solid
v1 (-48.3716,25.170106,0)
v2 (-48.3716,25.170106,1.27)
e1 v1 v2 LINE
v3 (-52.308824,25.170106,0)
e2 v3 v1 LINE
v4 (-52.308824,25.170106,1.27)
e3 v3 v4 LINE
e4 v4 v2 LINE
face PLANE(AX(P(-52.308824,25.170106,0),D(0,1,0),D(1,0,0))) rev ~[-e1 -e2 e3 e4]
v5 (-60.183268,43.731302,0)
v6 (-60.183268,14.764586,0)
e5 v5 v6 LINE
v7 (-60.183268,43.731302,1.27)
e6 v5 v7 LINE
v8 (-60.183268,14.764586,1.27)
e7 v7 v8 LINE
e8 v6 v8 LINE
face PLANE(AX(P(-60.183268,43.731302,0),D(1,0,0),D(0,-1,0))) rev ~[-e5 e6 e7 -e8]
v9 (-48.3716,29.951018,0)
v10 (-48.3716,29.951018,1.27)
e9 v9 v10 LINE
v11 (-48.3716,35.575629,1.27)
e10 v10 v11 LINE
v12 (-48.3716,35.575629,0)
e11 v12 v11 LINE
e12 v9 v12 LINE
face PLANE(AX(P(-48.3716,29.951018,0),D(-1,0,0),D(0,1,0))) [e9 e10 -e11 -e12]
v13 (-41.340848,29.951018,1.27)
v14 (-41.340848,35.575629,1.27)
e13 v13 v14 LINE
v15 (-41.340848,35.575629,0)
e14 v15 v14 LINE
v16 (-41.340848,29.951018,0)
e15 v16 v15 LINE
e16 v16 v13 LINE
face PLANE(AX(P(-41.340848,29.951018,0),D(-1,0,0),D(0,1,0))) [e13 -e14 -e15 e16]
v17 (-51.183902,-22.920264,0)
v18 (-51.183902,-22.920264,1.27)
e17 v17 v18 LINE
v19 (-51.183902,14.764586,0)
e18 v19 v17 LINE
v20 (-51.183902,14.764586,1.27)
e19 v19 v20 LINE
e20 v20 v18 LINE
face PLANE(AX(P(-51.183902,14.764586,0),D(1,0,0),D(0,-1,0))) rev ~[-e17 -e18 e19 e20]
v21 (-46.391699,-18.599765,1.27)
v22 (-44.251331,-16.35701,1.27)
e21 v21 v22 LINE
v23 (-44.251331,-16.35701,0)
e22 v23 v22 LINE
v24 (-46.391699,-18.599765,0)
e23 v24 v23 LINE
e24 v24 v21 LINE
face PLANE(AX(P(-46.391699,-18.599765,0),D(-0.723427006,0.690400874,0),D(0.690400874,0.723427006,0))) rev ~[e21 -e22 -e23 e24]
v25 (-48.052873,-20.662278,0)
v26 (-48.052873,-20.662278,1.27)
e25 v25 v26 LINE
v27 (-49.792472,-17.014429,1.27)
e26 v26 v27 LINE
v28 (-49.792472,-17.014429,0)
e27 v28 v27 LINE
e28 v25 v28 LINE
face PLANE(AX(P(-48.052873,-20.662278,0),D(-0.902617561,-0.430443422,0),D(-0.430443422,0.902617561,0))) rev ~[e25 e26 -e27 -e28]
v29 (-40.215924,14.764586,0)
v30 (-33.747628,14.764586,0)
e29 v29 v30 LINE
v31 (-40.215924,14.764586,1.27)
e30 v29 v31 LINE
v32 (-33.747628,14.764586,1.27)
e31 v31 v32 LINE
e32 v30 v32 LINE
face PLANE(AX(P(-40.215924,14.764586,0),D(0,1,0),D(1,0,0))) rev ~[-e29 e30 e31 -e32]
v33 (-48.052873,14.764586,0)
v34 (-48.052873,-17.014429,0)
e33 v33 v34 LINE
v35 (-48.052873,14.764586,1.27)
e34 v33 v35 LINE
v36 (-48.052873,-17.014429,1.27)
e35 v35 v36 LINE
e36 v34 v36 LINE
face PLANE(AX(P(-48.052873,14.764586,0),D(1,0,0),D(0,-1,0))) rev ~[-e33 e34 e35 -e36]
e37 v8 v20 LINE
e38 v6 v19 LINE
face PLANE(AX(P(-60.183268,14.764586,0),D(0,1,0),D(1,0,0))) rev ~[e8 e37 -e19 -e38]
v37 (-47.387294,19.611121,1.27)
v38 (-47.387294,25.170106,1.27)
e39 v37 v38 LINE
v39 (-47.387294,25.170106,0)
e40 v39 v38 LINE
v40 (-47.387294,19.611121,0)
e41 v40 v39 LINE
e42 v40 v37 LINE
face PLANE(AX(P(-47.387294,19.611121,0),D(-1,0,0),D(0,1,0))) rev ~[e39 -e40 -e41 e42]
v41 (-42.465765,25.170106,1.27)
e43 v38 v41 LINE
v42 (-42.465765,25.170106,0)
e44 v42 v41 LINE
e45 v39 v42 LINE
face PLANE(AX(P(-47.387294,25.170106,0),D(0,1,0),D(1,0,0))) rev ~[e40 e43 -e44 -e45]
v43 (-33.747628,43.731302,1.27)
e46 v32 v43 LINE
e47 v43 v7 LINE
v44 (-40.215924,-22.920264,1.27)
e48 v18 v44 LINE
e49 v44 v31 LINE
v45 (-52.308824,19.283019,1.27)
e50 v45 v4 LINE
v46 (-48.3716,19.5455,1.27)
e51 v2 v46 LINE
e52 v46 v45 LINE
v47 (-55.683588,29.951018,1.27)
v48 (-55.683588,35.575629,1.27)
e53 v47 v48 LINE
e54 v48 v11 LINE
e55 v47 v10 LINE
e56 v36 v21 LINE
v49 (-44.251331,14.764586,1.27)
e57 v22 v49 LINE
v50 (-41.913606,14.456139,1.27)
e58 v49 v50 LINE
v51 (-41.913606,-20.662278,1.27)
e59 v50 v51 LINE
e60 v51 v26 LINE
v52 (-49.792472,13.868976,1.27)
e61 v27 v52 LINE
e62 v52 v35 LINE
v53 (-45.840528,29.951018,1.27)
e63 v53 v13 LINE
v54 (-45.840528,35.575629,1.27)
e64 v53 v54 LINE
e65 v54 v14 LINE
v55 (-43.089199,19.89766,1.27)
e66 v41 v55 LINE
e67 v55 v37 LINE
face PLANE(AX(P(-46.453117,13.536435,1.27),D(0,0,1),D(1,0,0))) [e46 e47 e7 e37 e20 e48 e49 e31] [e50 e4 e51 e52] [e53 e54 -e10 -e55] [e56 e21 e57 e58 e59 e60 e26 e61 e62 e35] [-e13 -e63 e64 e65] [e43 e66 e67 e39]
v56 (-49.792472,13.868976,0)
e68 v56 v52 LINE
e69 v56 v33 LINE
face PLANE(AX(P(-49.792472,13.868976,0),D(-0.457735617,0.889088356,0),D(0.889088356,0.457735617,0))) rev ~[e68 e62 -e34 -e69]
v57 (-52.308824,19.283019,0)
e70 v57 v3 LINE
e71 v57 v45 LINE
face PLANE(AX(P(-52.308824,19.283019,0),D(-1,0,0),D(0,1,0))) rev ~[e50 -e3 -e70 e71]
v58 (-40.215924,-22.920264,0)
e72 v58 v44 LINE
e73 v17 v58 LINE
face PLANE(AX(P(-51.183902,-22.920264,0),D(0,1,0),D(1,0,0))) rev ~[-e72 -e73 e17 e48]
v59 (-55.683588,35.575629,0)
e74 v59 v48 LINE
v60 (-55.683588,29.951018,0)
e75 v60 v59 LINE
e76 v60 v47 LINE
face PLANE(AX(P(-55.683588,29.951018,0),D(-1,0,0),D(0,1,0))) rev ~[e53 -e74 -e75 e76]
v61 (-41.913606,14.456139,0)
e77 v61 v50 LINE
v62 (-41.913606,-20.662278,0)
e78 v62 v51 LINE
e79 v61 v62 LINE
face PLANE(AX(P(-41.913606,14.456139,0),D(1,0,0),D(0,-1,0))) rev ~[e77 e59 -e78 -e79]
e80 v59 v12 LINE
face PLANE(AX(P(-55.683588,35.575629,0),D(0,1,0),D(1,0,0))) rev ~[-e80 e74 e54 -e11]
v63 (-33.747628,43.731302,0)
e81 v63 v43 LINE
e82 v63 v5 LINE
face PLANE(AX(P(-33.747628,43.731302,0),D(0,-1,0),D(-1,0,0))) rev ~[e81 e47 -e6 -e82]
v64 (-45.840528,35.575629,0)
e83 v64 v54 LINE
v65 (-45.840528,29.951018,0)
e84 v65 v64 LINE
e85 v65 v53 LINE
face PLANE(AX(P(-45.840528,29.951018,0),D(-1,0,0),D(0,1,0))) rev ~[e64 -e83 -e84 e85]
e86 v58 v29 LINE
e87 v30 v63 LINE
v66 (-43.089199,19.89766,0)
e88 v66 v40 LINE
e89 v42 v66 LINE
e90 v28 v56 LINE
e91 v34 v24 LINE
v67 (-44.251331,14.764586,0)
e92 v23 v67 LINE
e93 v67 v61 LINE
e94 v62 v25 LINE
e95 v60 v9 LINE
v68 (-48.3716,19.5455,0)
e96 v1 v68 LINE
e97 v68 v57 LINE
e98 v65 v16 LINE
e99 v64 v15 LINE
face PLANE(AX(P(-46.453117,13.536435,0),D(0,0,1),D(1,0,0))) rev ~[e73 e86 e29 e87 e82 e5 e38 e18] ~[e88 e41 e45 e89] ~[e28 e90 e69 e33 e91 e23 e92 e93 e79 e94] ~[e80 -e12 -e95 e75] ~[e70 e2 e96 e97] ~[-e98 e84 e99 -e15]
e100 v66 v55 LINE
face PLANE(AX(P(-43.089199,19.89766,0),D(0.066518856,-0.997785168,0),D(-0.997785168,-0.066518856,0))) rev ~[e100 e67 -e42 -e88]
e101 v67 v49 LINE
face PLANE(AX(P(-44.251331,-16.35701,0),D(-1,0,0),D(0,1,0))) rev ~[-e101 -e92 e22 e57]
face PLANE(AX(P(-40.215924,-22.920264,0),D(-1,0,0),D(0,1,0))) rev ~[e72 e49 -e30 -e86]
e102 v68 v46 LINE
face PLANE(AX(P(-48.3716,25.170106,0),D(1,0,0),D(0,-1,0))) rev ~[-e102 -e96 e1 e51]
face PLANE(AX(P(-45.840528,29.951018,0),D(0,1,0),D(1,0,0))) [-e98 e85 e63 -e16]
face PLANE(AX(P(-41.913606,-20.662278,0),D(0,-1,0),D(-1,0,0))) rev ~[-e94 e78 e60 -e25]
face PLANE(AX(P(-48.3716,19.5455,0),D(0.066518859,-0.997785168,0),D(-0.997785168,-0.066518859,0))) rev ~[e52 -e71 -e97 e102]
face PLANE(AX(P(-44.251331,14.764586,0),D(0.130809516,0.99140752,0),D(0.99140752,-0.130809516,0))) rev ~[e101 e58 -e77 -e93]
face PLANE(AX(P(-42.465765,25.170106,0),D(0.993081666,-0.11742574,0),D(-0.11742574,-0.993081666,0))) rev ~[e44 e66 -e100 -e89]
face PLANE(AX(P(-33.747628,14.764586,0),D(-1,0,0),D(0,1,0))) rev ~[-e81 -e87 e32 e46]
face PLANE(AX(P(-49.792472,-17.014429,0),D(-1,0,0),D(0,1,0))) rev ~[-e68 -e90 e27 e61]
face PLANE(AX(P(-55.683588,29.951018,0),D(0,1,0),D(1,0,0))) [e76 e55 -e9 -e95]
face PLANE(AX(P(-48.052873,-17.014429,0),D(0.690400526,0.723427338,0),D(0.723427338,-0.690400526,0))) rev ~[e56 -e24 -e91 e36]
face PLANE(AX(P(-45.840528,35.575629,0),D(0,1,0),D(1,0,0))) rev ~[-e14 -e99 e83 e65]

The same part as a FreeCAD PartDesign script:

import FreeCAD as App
import Part
import Sketcher
from FreeCAD import Vector
Q = App.Units.Quantity

doc = App.newDocument("Part")
body = doc.addObject("PartDesign::Body", "Body")

sketch1 = body.newObject("Sketcher::SketchObject", "Sketch")
sketch1.AttachmentSupport = (doc.getObject("XY_Plane"), [""])
sketch1.MapMode = "FlatFace"
sketch1.addGeometry(Part.LineSegment(Vector(-60.2, 43.7, 0), Vector(-60.2, 14.8, 0)), False)
sketch1.addGeometry(Part.LineSegment(Vector(-60.2, 14.8, 0), Vector(-51.2, 14.8, 0)), False)
sketch1.addGeometry(Part.LineSegment(Vector(-51.2, 14.8, 0), Vector(-51.2, -22.9, 0)), False)
sketch1.addGeometry(Part.LineSegment(Vector(-51.2, -22.9, 0), Vector(-40.2, -22.9, 0)), False)
sketch1.addGeometry(Part.LineSegment(Vector(-40.2, -22.9, 0), Vector(-40.2, 14.8, 0)), False)
sketch1.addGeometry(Part.LineSegment(Vector(-40.2, 14.8, 0), Vector(-33.7, 14.8, 0)), False)
sketch1.addGeometry(Part.LineSegment(Vector(-33.7, 14.8, 0), Vector(-33.7, 43.7, 0)), False)
sketch1.addGeometry(Part.LineSegment(Vector(-33.7, 43.7, 0), Vector(-60.2, 43.7, 0)), False)
sketch1.addGeometry(Part.LineSegment(Vector(-44.3, -16.4, 0), Vector(-44.3, 14.8, 0)), False)
sketch1.addGeometry(Part.LineSegment(Vector(-44.3, 14.8, 0), Vector(-41.9, 14.5, 0)), False)
sketch1.addGeometry(Part.LineSegment(Vector(-41.9, 14.5, 0), Vector(-41.9, -20.7, 0)), False)
sketch1.addGeometry(Part.LineSegment(Vector(-41.9, -20.7, 0), Vector(-48.1, -20.7, 0)), False)
sketch1.addGeometry(Part.LineSegment(Vector(-48.1, -20.7, 0), Vector(-49.8, -17, 0)), False)
sketch1.addGeometry(Part.LineSegment(Vector(-49.8, -17, 0), Vector(-49.8, 13.9, 0)), False)
sketch1.addGeometry(Part.LineSegment(Vector(-49.8, 13.9, 0), Vector(-48.1, 14.8, 0)), False)
sketch1.addGeometry(Part.LineSegment(Vector(-48.1, 14.8, 0), Vector(-48.1, -17, 0)), False)
sketch1.addGeometry(Part.LineSegment(Vector(-48.1, -17, 0), Vector(-46.4, -18.6, 0)), False)
sketch1.addGeometry(Part.LineSegment(Vector(-46.4, -18.6, 0), Vector(-44.3, -16.4, 0)), False)
sketch1.addGeometry(Part.LineSegment(Vector(-48.4, 19.5, 0), Vector(-52.3, 19.3, 0)), False)
sketch1.addGeometry(Part.LineSegment(Vector(-52.3, 19.3, 0), Vector(-52.3, 25.2, 0)), False)
sketch1.addGeometry(Part.LineSegment(Vector(-52.3, 25.2, 0), Vector(-48.4, 25.2, 0)), False)
sketch1.addGeometry(Part.LineSegment(Vector(-48.4, 25.2, 0), Vector(-48.4, 19.5, 0)), False)
sketch1.addGeometry(Part.LineSegment(Vector(-48.4, 30, 0), Vector(-55.7, 30, 0)), False)
sketch1.addGeometry(Part.LineSegment(Vector(-55.7, 30, 0), Vector(-55.7, 35.6, 0)), False)
sketch1.addGeometry(Part.LineSegment(Vector(-55.7, 35.6, 0), Vector(-48.4, 35.6, 0)), False)
sketch1.addGeometry(Part.LineSegment(Vector(-48.4, 35.6, 0), Vector(-48.4, 30, 0)), False)
sketch1.addGeometry(Part.LineSegment(Vector(-47.4, 19.6, 0), Vector(-47.4, 25.2, 0)), False)
sketch1.addGeometry(Part.LineSegment(Vector(-47.4, 25.2, 0), Vector(-42.5, 25.2, 0)), False)
sketch1.addGeometry(Part.LineSegment(Vector(-42.5, 25.2, 0), Vector(-43.1, 19.9, 0)), False)
sketch1.addGeometry(Part.LineSegment(Vector(-43.1, 19.9, 0), Vector(-47.4, 19.6, 0)), False)
sketch1.addGeometry(Part.LineSegment(Vector(-41.3, 30, 0), Vector(-45.8, 30, 0)), False)
sketch1.addGeometry(Part.LineSegment(Vector(-45.8, 30, 0), Vector(-45.8, 35.6, 0)), False)
sketch1.addGeometry(Part.LineSegment(Vector(-45.8, 35.6, 0), Vector(-41.3, 35.6, 0)), False)
sketch1.addGeometry(Part.LineSegment(Vector(-41.3, 35.6, 0), Vector(-41.3, 30, 0)), False)
sketch1.addConstraint(Sketcher.Constraint("Coincident", 0, 2, 1, 1))
sketch1.addConstraint(Sketcher.Constraint("Coincident", 1, 2, 2, 1))
sketch1.addConstraint(Sketcher.Constraint("Coincident", 2, 2, 3, 1))
sketch1.addConstraint(Sketcher.Constraint("Coincident", 3, 2, 4, 1))
sketch1.addConstraint(Sketcher.Constraint("Coincident", 4, 2, 5, 1))
sketch1.addConstraint(Sketcher.Constraint("Coincident", 5, 2, 6, 1))
sketch1.addConstraint(Sketcher.Constraint("Coincident", 6, 2, 7, 1))
sketch1.addConstraint(Sketcher.Constraint("Coincident", 7, 2, 0, 1))
sketch1.addConstraint(Sketcher.Constraint("Coincident", 8, 2, 9, 1))
sketch1.addConstraint(Sketcher.Constraint("Coincident", 9, 2, 10, 1))
sketch1.addConstraint(Sketcher.Constraint("Coincident", 10, 2, 11, 1))
sketch1.addConstraint(Sketcher.Constraint("Coincident", 11, 2, 12, 1))
sketch1.addConstraint(Sketcher.Constraint("Coincident", 12, 2, 13, 1))
sketch1.addConstraint(Sketcher.Constraint("Coincident", 13, 2, 14, 1))
sketch1.addConstraint(Sketcher.Constraint("Coincident", 14, 2, 15, 1))
sketch1.addConstraint(Sketcher.Constraint("Coincident", 15, 2, 16, 1))
sketch1.addConstraint(Sketcher.Constraint("Coincident", 16, 2, 17, 1))
sketch1.addConstraint(Sketcher.Constraint("Coincident", 17, 2, 8, 1))
sketch1.addConstraint(Sketcher.Constraint("Coincident", 18, 2, 19, 1))
sketch1.addConstraint(Sketcher.Constraint("Coincident", 19, 2, 20, 1))
sketch1.addConstraint(Sketcher.Constraint("Coincident", 20, 2, 21, 1))
sketch1.addConstraint(Sketcher.Constraint("Coincident", 21, 2, 18, 1))
sketch1.addConstraint(Sketcher.Constraint("Coincident", 22, 2, 23, 1))
sketch1.addConstraint(Sketcher.Constraint("Coincident", 23, 2, 24, 1))
sketch1.addConstraint(Sketcher.Constraint("Coincident", 24, 2, 25, 1))
sketch1.addConstraint(Sketcher.Constraint("Coincident", 25, 2, 22, 1))
sketch1.addConstraint(Sketcher.Constraint("Coincident", 26, 2, 27, 1))
sketch1.addConstraint(Sketcher.Constraint("Coincident", 27, 2, 28, 1))
sketch1.addConstraint(Sketcher.Constraint("Coincident", 28, 2, 29, 1))
sketch1.addConstraint(Sketcher.Constraint("Coincident", 29, 2, 26, 1))
sketch1.addConstraint(Sketcher.Constraint("Coincident", 30, 2, 31, 1))
sketch1.addConstraint(Sketcher.Constraint("Coincident", 31, 2, 32, 1))
sketch1.addConstraint(Sketcher.Constraint("Coincident", 32, 2, 33, 1))
sketch1.addConstraint(Sketcher.Constraint("Coincident", 33, 2, 30, 1))
sketch1.addConstraint(Sketcher.Constraint("Vertical", 0))
sketch1.addConstraint(Sketcher.Constraint("Horizontal", 1))
sketch1.addConstraint(Sketcher.Constraint("Vertical", 2))
sketch1.addConstraint(Sketcher.Constraint("Horizontal", 3))
sketch1.addConstraint(Sketcher.Constraint("Vertical", 4))
sketch1.addConstraint(Sketcher.Constraint("Horizontal", 5))
sketch1.addConstraint(Sketcher.Constraint("Vertical", 6))
sketch1.addConstraint(Sketcher.Constraint("Horizontal", 7))
sketch1.addConstraint(Sketcher.Constraint("Vertical", 8))
sketch1.addConstraint(Sketcher.Constraint("Vertical", 10))
sketch1.addConstraint(Sketcher.Constraint("Horizontal", 11))
sketch1.addConstraint(Sketcher.Constraint("Vertical", 13))
sketch1.addConstraint(Sketcher.Constraint("Vertical", 15))
sketch1.addConstraint(Sketcher.Constraint("Vertical", 19))
sketch1.addConstraint(Sketcher.Constraint("Horizontal", 20))
sketch1.addConstraint(Sketcher.Constraint("Vertical", 21))
sketch1.addConstraint(Sketcher.Constraint("Horizontal", 22))
sketch1.addConstraint(Sketcher.Constraint("Vertical", 23))
sketch1.addConstraint(Sketcher.Constraint("Horizontal", 24))
sketch1.addConstraint(Sketcher.Constraint("Vertical", 25))
sketch1.addConstraint(Sketcher.Constraint("Vertical", 26))
sketch1.addConstraint(Sketcher.Constraint("Horizontal", 27))
sketch1.addConstraint(Sketcher.Constraint("Horizontal", 30))
sketch1.addConstraint(Sketcher.Constraint("Vertical", 31))
sketch1.addConstraint(Sketcher.Constraint("Horizontal", 32))
sketch1.addConstraint(Sketcher.Constraint("Vertical", 33))
sketch1.addConstraint(Sketcher.Constraint("Perpendicular", 16, 17))
sketch1.addConstraint(Sketcher.Constraint("Parallel", 18, 29))
sketch1.addConstraint(Sketcher.Constraint("Horizontal", 1, 2, 4, 2))
sketch1.addConstraint(Sketcher.Constraint("Horizontal", 5, 2, 8, 2))
sketch1.addConstraint(Sketcher.Constraint("Horizontal", 8, 2, 14, 2))
sketch1.addConstraint(Sketcher.Constraint("Horizontal", 12, 2, 15, 2))
sketch1.addConstraint(Sketcher.Constraint("Horizontal", 20, 2, 26, 2))
sketch1.addConstraint(Sketcher.Constraint("Horizontal", 25, 2, 30, 2))
sketch1.addConstraint(Sketcher.Constraint("Horizontal", 24, 2, 31, 2))
sketch1.addConstraint(Sketcher.Constraint("Vertical", 11, 2, 14, 2))
sketch1.addConstraint(Sketcher.Constraint("Vertical", 21, 2, 24, 2))
sketch1.addConstraint(Sketcher.Constraint("DistanceY", 18, 2, 22, 2, Q("0.42 in")))
sketch1.addConstraint(Sketcher.Constraint("DistanceX", 3, 1, 3, 2, Q("10.967978 mm")))
sketch1.addConstraint(Sketcher.Constraint("DistanceX", 7, 2, 7, 1, Q("26.43564 mm")))
sketch1.addConstraint(Sketcher.Constraint("DistanceX", 22, 2, 22, 1, Q("7.311989 mm")))
sketch1.addConstraint(Sketcher.Constraint("DistanceX", 27, 1, 27, 2, Q("4.921529 mm")))
sketch1.addConstraint(Sketcher.Constraint("DistanceX", 30, 2, 30, 1, Q("4.499681 mm")))
sketch1.addConstraint(Sketcher.Constraint("DistanceY", 2, 2, 2, 1, Q("37.68485 mm")))
sketch1.addConstraint(Sketcher.Constraint("DistanceY", 23, 1, 23, 2, Q("5.624611 mm")))
sketch1.addConstraint(Sketcher.Constraint("DistanceX", 16, 2, -1, 1, Q("46.391699 mm")))
sketch1.addConstraint(Sketcher.Constraint("DistanceX", 20, 2, -1, 1, Q("48.3716 mm")))
sketch1.addConstraint(Sketcher.Constraint("DistanceY", -1, 1, 21, 2, Q("19.5455 mm")))
sketch1.addConstraint(Sketcher.Constraint("DistanceX", 28, 2, -1, 1, Q("43.089199 mm")))
sketch1.addConstraint(Sketcher.Constraint("DistanceX", 12, 2, 11, 2, Q("1.739599 mm")))
sketch1.addConstraint(Sketcher.Constraint("DistanceY", 2, 2, 16, 2, Q("4.320499 mm")))
sketch1.addConstraint(Sketcher.Constraint("Distance", 12, Q("4.041412 mm")))
sketch1.addConstraint(Sketcher.Constraint("Distance", 14, Q("1.95661 mm")))
sketch1.addConstraint(Sketcher.Constraint("Distance", 17, Q("3.100181 mm")))
sketch1.addConstraint(Sketcher.Constraint("DistanceX", 1, 1, 1, 2, Q("8.999366 mm")))
sketch1.addConstraint(Sketcher.Constraint("DistanceX", 11, 2, 11, 1, Q("6.139267 mm")))
sketch1.addConstraint(Sketcher.Constraint("DistanceX", 20, 1, 20, 2, Q("3.937224 mm")))
sketch1.addConstraint(Sketcher.Constraint("DistanceY", 0, 2, 0, 1, Q("28.966716 mm")))
sketch1.addConstraint(Sketcher.Constraint("DistanceY", 8, 1, 8, 2, Q("31.121596 mm")))
sketch1.addConstraint(Sketcher.Constraint("DistanceY", 10, 2, 10, 1, Q("35.118417 mm")))
sketch1.addConstraint(Sketcher.Constraint("DistanceY", 13, 1, 13, 2, Q("30.883405 mm")))
sketch1.addConstraint(Sketcher.Constraint("DistanceY", 19, 1, 19, 2, Q("5.887087 mm")))
sketch1.addConstraint(Sketcher.Constraint("DistanceY", 21, 2, 21, 1, Q("5.624606 mm")))
sketch1.addConstraint(Sketcher.Constraint("DistanceY", 26, 1, 26, 2, Q("5.558985 mm")))
sketch1.addConstraint(Sketcher.Constraint("DistanceY", -1, 1, 9, 2, Q("14.456139 mm")))
sketch1.addConstraint(Sketcher.Constraint("DistanceY", -1, 1, 28, 2, Q("19.89766 mm")))
sketch1.addConstraint(Sketcher.Constraint("DistanceX", 30, 2, -1, 1, Q("45.840528 mm")))
sketch1.addConstraint(Sketcher.Constraint("DistanceX", 1, 2, 8, 2, Q("6.932571 mm")))
pad1 = body.newObject("PartDesign::Pad", "Pad")
pad1.Profile = sketch1
pad1.Length = Q("0.05 in")

doc.recompute()
